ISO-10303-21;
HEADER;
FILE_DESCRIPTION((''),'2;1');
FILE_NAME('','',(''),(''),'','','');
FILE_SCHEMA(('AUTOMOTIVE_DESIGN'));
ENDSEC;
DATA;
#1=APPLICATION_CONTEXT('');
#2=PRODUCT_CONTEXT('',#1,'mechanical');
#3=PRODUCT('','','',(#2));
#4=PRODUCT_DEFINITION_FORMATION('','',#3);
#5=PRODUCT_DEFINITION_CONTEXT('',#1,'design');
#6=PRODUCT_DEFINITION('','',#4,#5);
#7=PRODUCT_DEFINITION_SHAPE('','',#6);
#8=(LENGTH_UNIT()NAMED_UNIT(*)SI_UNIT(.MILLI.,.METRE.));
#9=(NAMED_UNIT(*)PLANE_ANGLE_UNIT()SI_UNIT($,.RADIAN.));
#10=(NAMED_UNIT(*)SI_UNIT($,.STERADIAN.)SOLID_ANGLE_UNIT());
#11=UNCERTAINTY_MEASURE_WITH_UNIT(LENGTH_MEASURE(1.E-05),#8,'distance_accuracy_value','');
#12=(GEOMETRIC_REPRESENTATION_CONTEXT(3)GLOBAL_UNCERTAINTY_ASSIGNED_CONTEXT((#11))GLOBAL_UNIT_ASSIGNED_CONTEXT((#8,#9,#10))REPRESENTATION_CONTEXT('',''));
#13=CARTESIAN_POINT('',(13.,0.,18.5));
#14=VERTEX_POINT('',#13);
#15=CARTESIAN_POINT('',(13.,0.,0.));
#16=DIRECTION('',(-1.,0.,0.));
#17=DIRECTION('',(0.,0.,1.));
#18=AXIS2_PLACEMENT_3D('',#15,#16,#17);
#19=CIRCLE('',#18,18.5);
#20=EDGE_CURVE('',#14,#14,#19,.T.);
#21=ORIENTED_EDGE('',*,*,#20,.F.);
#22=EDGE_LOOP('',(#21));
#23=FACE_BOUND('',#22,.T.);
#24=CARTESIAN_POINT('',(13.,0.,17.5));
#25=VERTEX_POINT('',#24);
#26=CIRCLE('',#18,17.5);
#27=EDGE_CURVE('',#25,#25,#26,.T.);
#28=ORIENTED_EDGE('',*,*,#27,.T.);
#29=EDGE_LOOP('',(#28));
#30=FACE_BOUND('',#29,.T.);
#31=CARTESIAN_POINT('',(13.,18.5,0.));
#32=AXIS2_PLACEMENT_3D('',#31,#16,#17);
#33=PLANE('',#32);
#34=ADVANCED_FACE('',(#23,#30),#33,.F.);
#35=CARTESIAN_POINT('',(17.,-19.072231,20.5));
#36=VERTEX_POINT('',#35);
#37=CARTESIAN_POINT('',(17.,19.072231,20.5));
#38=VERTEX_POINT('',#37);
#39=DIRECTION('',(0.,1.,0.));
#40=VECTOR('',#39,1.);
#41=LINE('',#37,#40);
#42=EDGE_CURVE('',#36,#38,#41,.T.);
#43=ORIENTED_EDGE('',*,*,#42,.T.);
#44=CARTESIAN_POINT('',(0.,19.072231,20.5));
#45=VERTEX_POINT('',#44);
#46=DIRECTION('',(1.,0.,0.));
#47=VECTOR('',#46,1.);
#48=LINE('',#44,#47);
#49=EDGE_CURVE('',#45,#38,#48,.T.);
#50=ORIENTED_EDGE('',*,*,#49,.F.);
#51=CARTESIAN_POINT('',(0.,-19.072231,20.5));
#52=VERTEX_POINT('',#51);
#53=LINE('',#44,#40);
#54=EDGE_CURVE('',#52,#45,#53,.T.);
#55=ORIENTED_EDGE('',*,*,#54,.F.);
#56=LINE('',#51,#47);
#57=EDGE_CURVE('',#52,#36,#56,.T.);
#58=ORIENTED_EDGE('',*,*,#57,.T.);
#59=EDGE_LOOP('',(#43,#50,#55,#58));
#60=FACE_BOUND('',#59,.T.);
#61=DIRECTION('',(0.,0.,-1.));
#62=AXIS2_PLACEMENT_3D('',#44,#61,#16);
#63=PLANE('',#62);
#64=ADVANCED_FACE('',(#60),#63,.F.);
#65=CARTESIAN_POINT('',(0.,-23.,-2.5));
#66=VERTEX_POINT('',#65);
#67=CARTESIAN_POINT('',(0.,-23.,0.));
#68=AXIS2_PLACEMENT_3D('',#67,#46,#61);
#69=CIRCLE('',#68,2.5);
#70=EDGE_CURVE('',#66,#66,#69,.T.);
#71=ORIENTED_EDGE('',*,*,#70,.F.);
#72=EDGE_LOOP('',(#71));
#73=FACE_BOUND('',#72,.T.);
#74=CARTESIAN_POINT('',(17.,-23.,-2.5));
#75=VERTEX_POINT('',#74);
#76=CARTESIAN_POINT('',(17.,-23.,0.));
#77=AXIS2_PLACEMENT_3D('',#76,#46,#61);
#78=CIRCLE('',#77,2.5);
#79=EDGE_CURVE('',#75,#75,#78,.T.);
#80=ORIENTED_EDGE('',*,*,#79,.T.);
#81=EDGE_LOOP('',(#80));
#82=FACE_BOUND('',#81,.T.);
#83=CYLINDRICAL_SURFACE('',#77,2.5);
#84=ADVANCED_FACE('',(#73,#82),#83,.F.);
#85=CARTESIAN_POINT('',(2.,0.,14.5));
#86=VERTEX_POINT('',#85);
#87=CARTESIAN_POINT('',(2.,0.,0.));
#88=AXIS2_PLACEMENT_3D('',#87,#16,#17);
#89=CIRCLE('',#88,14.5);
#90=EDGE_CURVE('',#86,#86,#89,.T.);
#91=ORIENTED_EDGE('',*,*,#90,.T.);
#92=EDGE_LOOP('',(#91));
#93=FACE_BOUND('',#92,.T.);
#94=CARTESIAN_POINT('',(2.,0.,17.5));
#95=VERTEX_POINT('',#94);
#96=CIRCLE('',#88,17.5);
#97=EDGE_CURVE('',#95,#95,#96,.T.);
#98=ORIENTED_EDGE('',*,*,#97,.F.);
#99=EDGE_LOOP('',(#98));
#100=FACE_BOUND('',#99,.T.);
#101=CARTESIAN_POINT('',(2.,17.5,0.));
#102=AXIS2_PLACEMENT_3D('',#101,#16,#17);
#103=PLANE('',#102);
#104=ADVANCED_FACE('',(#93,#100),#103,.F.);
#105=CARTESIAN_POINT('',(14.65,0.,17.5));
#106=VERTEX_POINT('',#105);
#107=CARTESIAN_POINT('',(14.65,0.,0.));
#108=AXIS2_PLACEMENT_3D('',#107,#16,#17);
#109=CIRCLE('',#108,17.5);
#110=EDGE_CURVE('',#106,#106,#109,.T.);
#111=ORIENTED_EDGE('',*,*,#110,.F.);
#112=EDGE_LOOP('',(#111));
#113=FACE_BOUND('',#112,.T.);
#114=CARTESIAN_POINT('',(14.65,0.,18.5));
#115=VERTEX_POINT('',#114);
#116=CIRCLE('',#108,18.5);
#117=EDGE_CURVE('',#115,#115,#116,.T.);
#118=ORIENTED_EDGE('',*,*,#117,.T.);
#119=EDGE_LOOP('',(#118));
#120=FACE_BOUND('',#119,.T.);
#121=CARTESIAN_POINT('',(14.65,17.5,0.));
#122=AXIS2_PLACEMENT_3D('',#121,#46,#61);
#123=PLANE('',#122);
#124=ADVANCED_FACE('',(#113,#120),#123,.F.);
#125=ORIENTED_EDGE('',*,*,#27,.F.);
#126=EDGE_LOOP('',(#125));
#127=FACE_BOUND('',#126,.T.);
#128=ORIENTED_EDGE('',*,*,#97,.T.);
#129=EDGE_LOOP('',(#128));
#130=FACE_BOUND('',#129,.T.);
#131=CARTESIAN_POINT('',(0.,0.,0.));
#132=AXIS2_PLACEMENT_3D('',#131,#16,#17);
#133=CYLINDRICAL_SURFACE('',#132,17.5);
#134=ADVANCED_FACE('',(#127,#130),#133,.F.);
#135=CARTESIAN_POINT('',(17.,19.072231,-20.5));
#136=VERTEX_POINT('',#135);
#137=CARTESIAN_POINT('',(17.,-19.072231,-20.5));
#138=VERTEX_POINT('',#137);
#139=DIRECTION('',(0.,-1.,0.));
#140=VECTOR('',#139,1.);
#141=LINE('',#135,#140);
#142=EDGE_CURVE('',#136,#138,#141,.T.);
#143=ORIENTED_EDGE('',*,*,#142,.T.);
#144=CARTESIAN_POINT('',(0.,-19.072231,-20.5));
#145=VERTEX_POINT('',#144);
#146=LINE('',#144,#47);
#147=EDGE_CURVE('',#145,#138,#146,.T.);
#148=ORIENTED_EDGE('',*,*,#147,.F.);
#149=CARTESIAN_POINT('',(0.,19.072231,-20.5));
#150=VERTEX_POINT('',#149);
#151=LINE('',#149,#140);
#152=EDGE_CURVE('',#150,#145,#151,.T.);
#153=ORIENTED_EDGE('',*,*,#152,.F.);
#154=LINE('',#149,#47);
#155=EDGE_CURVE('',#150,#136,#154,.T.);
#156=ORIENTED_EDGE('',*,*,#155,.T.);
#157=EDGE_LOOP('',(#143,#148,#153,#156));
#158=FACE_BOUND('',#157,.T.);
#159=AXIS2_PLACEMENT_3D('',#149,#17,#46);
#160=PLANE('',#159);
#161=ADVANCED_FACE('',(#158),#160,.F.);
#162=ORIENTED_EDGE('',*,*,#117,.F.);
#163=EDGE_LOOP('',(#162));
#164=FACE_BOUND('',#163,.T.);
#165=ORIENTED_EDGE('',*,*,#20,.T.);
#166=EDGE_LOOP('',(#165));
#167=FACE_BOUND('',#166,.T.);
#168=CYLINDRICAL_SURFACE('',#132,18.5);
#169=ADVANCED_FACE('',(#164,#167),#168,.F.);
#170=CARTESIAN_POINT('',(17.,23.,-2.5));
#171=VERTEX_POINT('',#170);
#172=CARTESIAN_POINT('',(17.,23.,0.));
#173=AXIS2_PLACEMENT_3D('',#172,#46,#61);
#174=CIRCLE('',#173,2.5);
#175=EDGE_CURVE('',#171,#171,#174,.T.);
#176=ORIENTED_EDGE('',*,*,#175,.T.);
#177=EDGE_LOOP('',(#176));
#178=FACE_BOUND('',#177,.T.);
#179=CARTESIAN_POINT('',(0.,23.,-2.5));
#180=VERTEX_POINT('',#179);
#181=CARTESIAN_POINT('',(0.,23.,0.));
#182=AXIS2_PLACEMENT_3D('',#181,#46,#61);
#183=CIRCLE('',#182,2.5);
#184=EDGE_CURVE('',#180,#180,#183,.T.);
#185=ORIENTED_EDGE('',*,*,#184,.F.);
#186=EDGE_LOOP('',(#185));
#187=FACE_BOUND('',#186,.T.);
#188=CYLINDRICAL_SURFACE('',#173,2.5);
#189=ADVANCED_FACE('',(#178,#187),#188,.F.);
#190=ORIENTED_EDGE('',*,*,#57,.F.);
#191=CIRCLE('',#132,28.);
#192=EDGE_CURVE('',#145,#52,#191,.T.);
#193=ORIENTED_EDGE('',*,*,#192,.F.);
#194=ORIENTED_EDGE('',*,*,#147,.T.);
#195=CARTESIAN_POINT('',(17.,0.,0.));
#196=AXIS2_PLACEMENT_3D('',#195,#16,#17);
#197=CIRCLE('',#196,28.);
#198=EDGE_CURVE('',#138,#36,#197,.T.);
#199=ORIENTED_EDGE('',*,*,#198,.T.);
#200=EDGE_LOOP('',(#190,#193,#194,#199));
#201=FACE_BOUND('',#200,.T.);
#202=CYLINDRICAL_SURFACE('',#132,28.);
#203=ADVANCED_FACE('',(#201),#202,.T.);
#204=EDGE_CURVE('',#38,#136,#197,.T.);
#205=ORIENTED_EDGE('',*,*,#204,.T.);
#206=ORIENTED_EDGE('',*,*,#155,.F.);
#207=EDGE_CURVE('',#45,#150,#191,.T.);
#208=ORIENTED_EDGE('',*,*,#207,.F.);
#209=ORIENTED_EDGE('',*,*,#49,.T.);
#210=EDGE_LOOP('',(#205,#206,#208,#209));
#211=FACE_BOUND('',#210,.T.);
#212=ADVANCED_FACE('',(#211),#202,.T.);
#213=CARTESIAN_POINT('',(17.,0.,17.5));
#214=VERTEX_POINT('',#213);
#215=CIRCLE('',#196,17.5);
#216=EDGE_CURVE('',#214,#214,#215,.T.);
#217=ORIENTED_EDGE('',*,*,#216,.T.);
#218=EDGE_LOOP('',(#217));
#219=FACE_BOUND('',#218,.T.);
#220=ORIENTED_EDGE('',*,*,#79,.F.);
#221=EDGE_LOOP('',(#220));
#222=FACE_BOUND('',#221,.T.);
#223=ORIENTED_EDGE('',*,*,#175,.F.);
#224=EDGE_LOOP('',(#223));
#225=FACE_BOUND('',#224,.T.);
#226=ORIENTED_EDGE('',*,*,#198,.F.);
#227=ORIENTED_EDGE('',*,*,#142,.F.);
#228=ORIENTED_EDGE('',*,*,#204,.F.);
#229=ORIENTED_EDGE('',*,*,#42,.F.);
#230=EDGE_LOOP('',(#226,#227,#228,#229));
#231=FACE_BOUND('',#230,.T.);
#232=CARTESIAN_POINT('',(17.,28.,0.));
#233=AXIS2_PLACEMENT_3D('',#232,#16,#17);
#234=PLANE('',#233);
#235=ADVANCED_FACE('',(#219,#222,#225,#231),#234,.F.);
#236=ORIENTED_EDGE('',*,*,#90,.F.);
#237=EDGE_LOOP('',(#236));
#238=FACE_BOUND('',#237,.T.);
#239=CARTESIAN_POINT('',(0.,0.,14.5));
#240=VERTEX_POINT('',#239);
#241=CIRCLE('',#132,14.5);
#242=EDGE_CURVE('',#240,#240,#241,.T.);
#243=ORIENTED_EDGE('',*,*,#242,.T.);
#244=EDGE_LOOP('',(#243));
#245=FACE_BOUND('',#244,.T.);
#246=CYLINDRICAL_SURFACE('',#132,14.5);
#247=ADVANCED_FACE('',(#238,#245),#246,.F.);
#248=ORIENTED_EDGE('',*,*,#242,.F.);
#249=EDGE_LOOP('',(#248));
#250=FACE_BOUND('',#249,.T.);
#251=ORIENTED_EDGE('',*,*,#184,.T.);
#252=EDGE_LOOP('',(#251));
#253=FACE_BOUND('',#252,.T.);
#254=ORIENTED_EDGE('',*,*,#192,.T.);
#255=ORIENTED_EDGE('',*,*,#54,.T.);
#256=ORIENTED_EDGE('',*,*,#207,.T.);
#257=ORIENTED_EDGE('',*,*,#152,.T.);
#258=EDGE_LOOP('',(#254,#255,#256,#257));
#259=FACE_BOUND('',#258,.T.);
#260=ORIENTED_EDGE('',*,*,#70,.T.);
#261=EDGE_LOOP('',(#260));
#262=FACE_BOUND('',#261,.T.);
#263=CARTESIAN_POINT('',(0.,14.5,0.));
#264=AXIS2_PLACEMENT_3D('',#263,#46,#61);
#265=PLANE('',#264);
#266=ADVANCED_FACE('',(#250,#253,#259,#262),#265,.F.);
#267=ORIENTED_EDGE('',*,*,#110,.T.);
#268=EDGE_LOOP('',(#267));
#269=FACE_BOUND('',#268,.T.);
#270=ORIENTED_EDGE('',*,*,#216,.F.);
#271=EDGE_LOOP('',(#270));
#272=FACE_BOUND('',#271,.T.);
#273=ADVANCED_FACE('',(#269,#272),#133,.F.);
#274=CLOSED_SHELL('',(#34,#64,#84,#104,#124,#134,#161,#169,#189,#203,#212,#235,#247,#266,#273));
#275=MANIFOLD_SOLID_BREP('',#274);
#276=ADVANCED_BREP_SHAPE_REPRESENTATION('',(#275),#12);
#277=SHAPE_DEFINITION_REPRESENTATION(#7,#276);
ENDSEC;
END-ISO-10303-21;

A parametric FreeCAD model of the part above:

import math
import FreeCAD as App
import Part
import Sketcher
from FreeCAD import Vector


def add_polygon(sketch, points):
    """Adds a closed chain of lines whose ends are joined by coincident constraints."""
    first, n = sketch.GeometryCount, len(points)
    for a, b in zip(points, points[1:] + points[:1]):
        sketch.addGeometry(Part.LineSegment(App.Vector(*a, 0), App.Vector(*b, 0)), False)
    for i in range(n):
        sketch.addConstraint(Sketcher.Constraint("Coincident", first + i, 2, first + (i + 1) % n, 1))

doc = App.newDocument("Part")
params = doc.addObject("Spreadsheet::Sheet", "Params")
for row, (alias, value) in enumerate([
    ("sketch1_width", "17 mm"),
    ("sketch1_width2", "2 mm"),
    ("sketch1_width3", "11 mm"),
    ("sketch1_height", "3 mm"),
    ("sketch1_height2", "1 mm"),
    ("revolution_angle", "360 deg"),
    ("sketch2_radius", "28 mm"),
    ("sketch3_diameter", "5 mm"),
    ("hole_diameter", "5 mm"),
], start=1):
    params.set(f"A{row}", alias)
    params.set(f"B{row}", "=" + value)
    params.setAlias(f"B{row}", alias)

body = doc.addObject("PartDesign::Body", "Body")

sketch1 = body.newObject("Sketcher::SketchObject", "Sketch")
sketch1.AttachmentSupport = (doc.getObject("XY_Plane"), [""])
sketch1.MapMode = "FlatFace"
add_polygon(sketch1, [(17, 28), (0, 28), (0, 14.5), (2, 14.5), (2, 17.5), (13, 17.5), (13, 18.5), (14.7, 18.5), (14.7, 17.5), (17, 17.5)])
sketch1.addConstraint([
    Sketcher.Constraint("Horizontal", 0),
    Sketcher.Constraint("Vertical", 1),
    Sketcher.Constraint("Horizontal", 2),
    Sketcher.Constraint("Vertical", 3),
    Sketcher.Constraint("Horizontal", 4),
    Sketcher.Constraint("Vertical", 5),
    Sketcher.Constraint("Horizontal", 6),
    Sketcher.Constraint("Vertical", 7),
    Sketcher.Constraint("Horizontal", 8),
    Sketcher.Constraint("Vertical", 9),
    Sketcher.Constraint("PointOnObject", 0, 2, -2),
    Sketcher.Constraint("Horizontal", 4, 2, 7, 2),
    Sketcher.Constraint("DistanceX", 0, 2, 0, 1, 17.0),
    Sketcher.Constraint("DistanceX", 2, 1, 2, 2, 2.0),
    Sketcher.Constraint("DistanceX", 4, 1, 4, 2, 11.0),
    Sketcher.Constraint("DistanceY", 3, 1, 3, 2, 3.0),
    Sketcher.Constraint("DistanceY", 5, 1, 5, 2, 1.0),
    Sketcher.Constraint("DistanceY", 1, 2, 1, 1, 13.5),
    Sketcher.Constraint("DistanceY", -1, 1, 0, 2, 28.0),
    Sketcher.Constraint("DistanceX", 6, 1, 6, 2, 1.65),
])
sketch1.setExpression("Constraints[22]", "Params.sketch1_width")
sketch1.setExpression("Constraints[23]", "Params.sketch1_width2")
sketch1.setExpression("Constraints[24]", "Params.sketch1_width3")
sketch1.setExpression("Constraints[25]", "Params.sketch1_height")
sketch1.setExpression("Constraints[26]", "Params.sketch1_height2")
revolution = body.newObject("PartDesign::Revolution", "Revolution")
revolution.Profile = sketch1
revolution.ReferenceAxis = (sketch1, ["H_Axis"])
revolution.setExpression("Angle", "Params.revolution_angle")

sketch2 = body.newObject("Sketcher::SketchObject", "Sketch001")
sketch2.AttachmentSupport = (doc.getObject("YZ_Plane"), [""])
sketch2.MapMode = "FlatFace"
sketch2.AttachmentOffset = App.Placement(Vector(0, 0, 17), App.Rotation())
sketch2.addGeometry([
    Part.LineSegment(Vector(-19, 20, 0), Vector(19, 20, 0)),
    Part.ArcOfCircle(Part.Circle(Vector(0, 0, 0), Vector(0, 0, 1), 28), math.radians(47), math.radians(133)),
    Part.LineSegment(Vector(19, -20, 0), Vector(-19, -20, 0)),
    Part.ArcOfCircle(Part.Circle(Vector(0, 0, 0), Vector(0, 0, 1), 28), math.radians(-133), math.radians(-47)),
], False)
sketch2.addConstraint([
    Sketcher.Constraint("Coincident", 0, 1, 1, 2),
    Sketcher.Constraint("Coincident", 1, 1, 0, 2),
    Sketcher.Constraint("Coincident", 2, 1, 3, 2),
    Sketcher.Constraint("Coincident", 3, 1, 2, 2),
    Sketcher.Constraint("Horizontal", 0),
    Sketcher.Constraint("Horizontal", 2),
    Sketcher.Constraint("Coincident", 1, 3, -1, 1),
    Sketcher.Constraint("Coincident", 3, 3, -1, 1),
    Sketcher.Constraint("Equal", 1, 3),
    Sketcher.Constraint("Vertical", 1, 1, 2, 1),
    Sketcher.Constraint("Radius", 1, 28.0),
    Sketcher.Constraint("DistanceY", 2, 1, 1, 1, 41.0),
])
sketch2.setExpression("Constraints[10]", "Params.sketch2_radius")
pocket1 = body.newObject("PartDesign::Pocket", "Pocket")
pocket1.Profile = sketch2
pocket1.Type = "ThroughAll"

sketch3 = body.newObject("Sketcher::SketchObject", "Sketch002")
sketch3.AttachmentSupport = (doc.getObject("YZ_Plane"), [""])
sketch3.MapMode = "FlatFace"
sketch3.AttachmentOffset = App.Placement(Vector(0, 0, 17), App.Rotation())
sketch3.addGeometry([
    Part.Circle(Vector(23, 0, 0), Vector(0, 0, 1), 2.5),
    Part.Circle(Vector(-23, 0, 0), Vector(0, 0, 1), 2.5),
], False)
sketch3.addConstraint([
    Sketcher.Constraint("Equal", 0, 1),
    Sketcher.Constraint("Symmetric", 0, 3, 1, 3, -1, 1),
    Sketcher.Constraint("PointOnObject", 0, 3, -1),
    Sketcher.Constraint("Diameter", 0, 5.0),
    Sketcher.Constraint("DistanceX", -1, 1, 0, 3, 23.0),
])
sketch3.setExpression("Constraints[3]", "Params.sketch3_diameter")
doc.recompute()
hole = body.newObject("PartDesign::Hole", "Hole")
hole.Profile = sketch3
hole.ThreadType = "None"
hole.setExpression("Diameter", "Params.hole_diameter")
hole.DepthType = "ThroughAll"

doc.recompute()
